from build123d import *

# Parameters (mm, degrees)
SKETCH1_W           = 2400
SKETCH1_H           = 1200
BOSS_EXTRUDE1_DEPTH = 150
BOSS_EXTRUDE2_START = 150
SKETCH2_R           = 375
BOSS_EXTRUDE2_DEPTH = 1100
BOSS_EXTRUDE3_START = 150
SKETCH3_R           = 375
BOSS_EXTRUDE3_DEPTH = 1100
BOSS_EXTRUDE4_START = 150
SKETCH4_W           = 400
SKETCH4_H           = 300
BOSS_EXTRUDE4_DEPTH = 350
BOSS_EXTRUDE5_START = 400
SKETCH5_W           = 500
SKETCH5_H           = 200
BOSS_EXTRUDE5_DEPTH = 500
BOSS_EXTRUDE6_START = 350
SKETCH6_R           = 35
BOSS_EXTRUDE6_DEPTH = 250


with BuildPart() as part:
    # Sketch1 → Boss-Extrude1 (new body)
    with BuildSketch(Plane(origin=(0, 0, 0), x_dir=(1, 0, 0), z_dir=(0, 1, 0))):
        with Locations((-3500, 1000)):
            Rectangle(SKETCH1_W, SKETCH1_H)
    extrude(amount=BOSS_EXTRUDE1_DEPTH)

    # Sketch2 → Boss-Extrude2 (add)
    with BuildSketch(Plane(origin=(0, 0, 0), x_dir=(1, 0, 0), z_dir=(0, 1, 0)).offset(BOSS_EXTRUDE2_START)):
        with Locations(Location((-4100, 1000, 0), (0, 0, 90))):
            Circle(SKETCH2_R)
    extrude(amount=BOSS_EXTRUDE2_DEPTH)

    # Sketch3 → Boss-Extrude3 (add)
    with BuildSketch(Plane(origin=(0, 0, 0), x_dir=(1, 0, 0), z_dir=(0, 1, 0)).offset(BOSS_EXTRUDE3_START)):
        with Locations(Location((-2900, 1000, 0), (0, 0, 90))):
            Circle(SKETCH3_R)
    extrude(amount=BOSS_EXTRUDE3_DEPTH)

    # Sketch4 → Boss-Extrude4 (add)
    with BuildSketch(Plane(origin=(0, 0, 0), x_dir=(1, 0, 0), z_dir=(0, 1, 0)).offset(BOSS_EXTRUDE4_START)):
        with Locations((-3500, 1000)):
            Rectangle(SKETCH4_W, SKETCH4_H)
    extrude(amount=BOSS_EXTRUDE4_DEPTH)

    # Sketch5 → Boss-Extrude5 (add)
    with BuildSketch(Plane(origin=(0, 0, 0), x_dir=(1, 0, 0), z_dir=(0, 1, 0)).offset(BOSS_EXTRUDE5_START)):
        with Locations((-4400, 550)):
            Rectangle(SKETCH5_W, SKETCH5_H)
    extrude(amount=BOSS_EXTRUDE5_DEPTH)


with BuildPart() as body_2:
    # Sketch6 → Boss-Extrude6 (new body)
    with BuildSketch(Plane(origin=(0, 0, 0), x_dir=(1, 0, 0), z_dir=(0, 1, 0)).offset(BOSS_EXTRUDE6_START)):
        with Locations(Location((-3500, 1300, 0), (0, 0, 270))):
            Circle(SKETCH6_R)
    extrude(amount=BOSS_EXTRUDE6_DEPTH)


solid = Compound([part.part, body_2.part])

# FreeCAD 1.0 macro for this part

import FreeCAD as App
import Part
import Sketcher

V = App.Vector


def add_polygon(sketch, points):
    """Adds a closed chain of lines whose ends are joined by coincident constraints."""
    first, n = sketch.GeometryCount, len(points)
    for a, b in zip(points, points[1:] + points[:1]):
        sketch.addGeometry(Part.LineSegment(App.Vector(*a, 0), App.Vector(*b, 0)), False)
    for i in range(n):
        sketch.addConstraint(Sketcher.Constraint("Coincident", first + i, 2, first + (i + 1) % n, 1))

doc = App.newDocument("Part")
params = doc.addObject("Spreadsheet::Sheet", "Params")
for row, (alias, value) in enumerate([
    ("sketch1_width", "2400 mm"),
    ("sketch1_height", "1200 mm"),
    ("pad1_length", "150 mm"),
    ("sketch2_diameter", "750 mm"),
    ("pad2_length", "1100 mm"),
    ("sketch3_diameter", "750 mm"),
    ("pad3_length", "1100 mm"),
    ("sketch4_width", "400 mm"),
    ("sketch4_height", "300 mm"),
    ("pad4_length", "350 mm"),
    ("sketch5_width", "500 mm"),
    ("sketch5_height", "200 mm"),
    ("pad5_length", "500 mm"),
    ("sketch6_diameter", "70 mm"),
    ("pad6_length", "250 mm"),
], start=1):
    params.set(f"A{row}", alias)
    params.set(f"B{row}", "=" + value)
    params.setAlias(f"B{row}", alias)

body = doc.addObject("PartDesign::Body", "Body")

# Sketch on XZ plane
sketch1 = body.newObject("Sketcher::SketchObject", "Sketch")
sketch1.AttachmentSupport = (doc.getObject("XZ_Plane"), [""])
sketch1.MapMode = "FlatFace"
add_polygon(sketch1, [(-4700, -1600), (-4700, -400), (-2300, -400), (-2300, -1600)])  # lines 0-3
sketch1.addConstraint([
    Sketcher.Constraint("Vertical", 0),
    Sketcher.Constraint("Horizontal", 1),
    Sketcher.Constraint("Vertical", 2),
    Sketcher.Constraint("Horizontal", 3),
    Sketcher.Constraint("DistanceX", 1, 1, 1, 2, 2400.0),
    Sketcher.Constraint("DistanceY", 0, 1, 0, 2, 1200.0),
    Sketcher.Constraint("DistanceX", 0, 2, -1, 1, 4700.0),
    Sketcher.Constraint("DistanceY", 0, 2, -1, 1, 400.0),
])
sketch1.setExpression("Constraints[8]", "Params.sketch1_width")
sketch1.setExpression("Constraints[9]", "Params.sketch1_height")
pad1 = body.newObject("PartDesign::Pad", "Pad")
pad1.Profile = sketch1
pad1.setExpression("Length", "Params.pad1_length")
pad1.Reversed = True

# Sketch on XZ plane
sketch2 = body.newObject("Sketcher::SketchObject", "Sketch001")
sketch2.AttachmentSupport = (doc.getObject("XZ_Plane"), [""])
sketch2.MapMode = "FlatFace"
sketch2.AttachmentOffset = App.Placement(V(0, 0, -150), App.Rotation())
sketch2.addGeometry(Part.Circle(V(-4100, -1000, 0), V(0, 0, 1), 375), False)
sketch2.addConstraint([
    Sketcher.Constraint("Diameter", 0, 750.0),
    Sketcher.Constraint("DistanceX", 0, 3, -1, 1, 4100.0),
    Sketcher.Constraint("DistanceY", 0, 3, -1, 1, 1000.0),
])
sketch2.setExpression("Constraints[0]", "Params.sketch2_diameter")
pad2 = body.newObject("PartDesign::Pad", "Pad001")
pad2.Profile = sketch2
pad2.setExpression("Length", "Params.pad2_length")
pad2.Reversed = True

# Sketch on XZ plane
sketch3 = body.newObject("Sketcher::SketchObject", "Sketch002")
sketch3.AttachmentSupport = (doc.getObject("XZ_Plane"), [""])
sketch3.MapMode = "FlatFace"
sketch3.AttachmentOffset = App.Placement(V(0, 0, -150), App.Rotation())
sketch3.addGeometry(Part.Circle(V(-2900, -1000, 0), V(0, 0, 1), 375), False)
sketch3.addConstraint([
    Sketcher.Constraint("Diameter", 0, 750.0),
    Sketcher.Constraint("DistanceX", 0, 3, -1, 1, 2900.0),
    Sketcher.Constraint("DistanceY", 0, 3, -1, 1, 1000.0),
])
sketch3.setExpression("Constraints[0]", "Params.sketch3_diameter")
pad3 = body.newObject("PartDesign::Pad", "Pad002")
pad3.Profile = sketch3
pad3.setExpression("Length", "Params.pad3_length")
pad3.Reversed = True

# Sketch on XZ plane
sketch4 = body.newObject("Sketcher::SketchObject", "Sketch003")
sketch4.AttachmentSupport = (doc.getObject("XZ_Plane"), [""])
sketch4.MapMode = "FlatFace"
sketch4.AttachmentOffset = App.Placement(V(0, 0, -150), App.Rotation())
add_polygon(sketch4, [(-3700, -1150), (-3700, -850), (-3300, -850), (-3300, -1150)])  # lines 0-3
sketch4.addConstraint([
    Sketcher.Constraint("Vertical", 0),
    Sketcher.Constraint("Horizontal", 1),
    Sketcher.Constraint("Vertical", 2),
    Sketcher.Constraint("Horizontal", 3),
    Sketcher.Constraint("DistanceX", 1, 1, 1, 2, 400.0),
    Sketcher.Constraint("DistanceY", 0, 1, 0, 2, 300.0),
    Sketcher.Constraint("DistanceX", 0, 2, -1, 1, 3700.0),
    Sketcher.Constraint("DistanceY", 0, 2, -1, 1, 850.0),
])
sketch4.setExpression("Constraints[8]", "Params.sketch4_width")
sketch4.setExpression("Constraints[9]", "Params.sketch4_height")
pad4 = body.newObject("PartDesign::Pad", "Pad003")
pad4.Profile = sketch4
pad4.setExpression("Length", "Params.pad4_length")
pad4.Reversed = True

# Sketch on XZ plane
sketch5 = body.newObject("Sketcher::SketchObject", "Sketch004")
sketch5.AttachmentSupport = (doc.getObject("XZ_Plane"), [""])
sketch5.MapMode = "FlatFace"
sketch5.AttachmentOffset = App.Placement(V(0, 0, -400), App.Rotation())
add_polygon(sketch5, [(-4650, -650), (-4650, -450), (-4150, -450), (-4150, -650)])  # lines 0-3
sketch5.addConstraint([
    Sketcher.Constraint("Vertical", 0),
    Sketcher.Constraint("Horizontal", 1),
    Sketcher.Constraint("Vertical", 2),
    Sketcher.Constraint("Horizontal", 3),
    Sketcher.Constraint("DistanceX", 1, 1, 1, 2, 500.0),
    Sketcher.Constraint("DistanceY", 0, 1, 0, 2, 200.0),
    Sketcher.Constraint("DistanceX", 0, 2, -1, 1, 4650.0),
    Sketcher.Constraint("DistanceY", 0, 2, -1, 1, 450.0),
])
sketch5.setExpression("Constraints[8]", "Params.sketch5_width")
sketch5.setExpression("Constraints[9]", "Params.sketch5_height")
pad5 = body.newObject("PartDesign::Pad", "Pad004")
pad5.Profile = sketch5
pad5.setExpression("Length", "Params.pad5_length")
pad5.Reversed = True
body2 = doc.addObject("PartDesign::Body", "Body001")

# Sketch on XZ plane
sketch6 = body2.newObject("Sketcher::SketchObject", "Sketch005")
sketch6.AttachmentSupport = (doc.getObject("XZ_Plane001"), [""])
sketch6.MapMode = "FlatFace"
sketch6.AttachmentOffset = App.Placement(V(0, 0, -350), App.Rotation())
sketch6.addGeometry(Part.Circle(V(-3500, -1300, 0), V(0, 0, 1), 35), False)
sketch6.addConstraint([
    Sketcher.Constraint("Diameter", 0, 70.0),
    Sketcher.Constraint("DistanceX", 0, 3, -1, 1, 3500.0),
    Sketcher.Constraint("DistanceY", 0, 3, -1, 1, 1300.0),
])
sketch6.setExpression("Constraints[0]", "Params.sketch6_diameter")
pad6 = body2.newObject("PartDesign::Pad", "Pad005")
pad6.Profile = sketch6
pad6.setExpression("Length", "Params.pad6_length")
pad6.Reversed = True

doc.recompute()
